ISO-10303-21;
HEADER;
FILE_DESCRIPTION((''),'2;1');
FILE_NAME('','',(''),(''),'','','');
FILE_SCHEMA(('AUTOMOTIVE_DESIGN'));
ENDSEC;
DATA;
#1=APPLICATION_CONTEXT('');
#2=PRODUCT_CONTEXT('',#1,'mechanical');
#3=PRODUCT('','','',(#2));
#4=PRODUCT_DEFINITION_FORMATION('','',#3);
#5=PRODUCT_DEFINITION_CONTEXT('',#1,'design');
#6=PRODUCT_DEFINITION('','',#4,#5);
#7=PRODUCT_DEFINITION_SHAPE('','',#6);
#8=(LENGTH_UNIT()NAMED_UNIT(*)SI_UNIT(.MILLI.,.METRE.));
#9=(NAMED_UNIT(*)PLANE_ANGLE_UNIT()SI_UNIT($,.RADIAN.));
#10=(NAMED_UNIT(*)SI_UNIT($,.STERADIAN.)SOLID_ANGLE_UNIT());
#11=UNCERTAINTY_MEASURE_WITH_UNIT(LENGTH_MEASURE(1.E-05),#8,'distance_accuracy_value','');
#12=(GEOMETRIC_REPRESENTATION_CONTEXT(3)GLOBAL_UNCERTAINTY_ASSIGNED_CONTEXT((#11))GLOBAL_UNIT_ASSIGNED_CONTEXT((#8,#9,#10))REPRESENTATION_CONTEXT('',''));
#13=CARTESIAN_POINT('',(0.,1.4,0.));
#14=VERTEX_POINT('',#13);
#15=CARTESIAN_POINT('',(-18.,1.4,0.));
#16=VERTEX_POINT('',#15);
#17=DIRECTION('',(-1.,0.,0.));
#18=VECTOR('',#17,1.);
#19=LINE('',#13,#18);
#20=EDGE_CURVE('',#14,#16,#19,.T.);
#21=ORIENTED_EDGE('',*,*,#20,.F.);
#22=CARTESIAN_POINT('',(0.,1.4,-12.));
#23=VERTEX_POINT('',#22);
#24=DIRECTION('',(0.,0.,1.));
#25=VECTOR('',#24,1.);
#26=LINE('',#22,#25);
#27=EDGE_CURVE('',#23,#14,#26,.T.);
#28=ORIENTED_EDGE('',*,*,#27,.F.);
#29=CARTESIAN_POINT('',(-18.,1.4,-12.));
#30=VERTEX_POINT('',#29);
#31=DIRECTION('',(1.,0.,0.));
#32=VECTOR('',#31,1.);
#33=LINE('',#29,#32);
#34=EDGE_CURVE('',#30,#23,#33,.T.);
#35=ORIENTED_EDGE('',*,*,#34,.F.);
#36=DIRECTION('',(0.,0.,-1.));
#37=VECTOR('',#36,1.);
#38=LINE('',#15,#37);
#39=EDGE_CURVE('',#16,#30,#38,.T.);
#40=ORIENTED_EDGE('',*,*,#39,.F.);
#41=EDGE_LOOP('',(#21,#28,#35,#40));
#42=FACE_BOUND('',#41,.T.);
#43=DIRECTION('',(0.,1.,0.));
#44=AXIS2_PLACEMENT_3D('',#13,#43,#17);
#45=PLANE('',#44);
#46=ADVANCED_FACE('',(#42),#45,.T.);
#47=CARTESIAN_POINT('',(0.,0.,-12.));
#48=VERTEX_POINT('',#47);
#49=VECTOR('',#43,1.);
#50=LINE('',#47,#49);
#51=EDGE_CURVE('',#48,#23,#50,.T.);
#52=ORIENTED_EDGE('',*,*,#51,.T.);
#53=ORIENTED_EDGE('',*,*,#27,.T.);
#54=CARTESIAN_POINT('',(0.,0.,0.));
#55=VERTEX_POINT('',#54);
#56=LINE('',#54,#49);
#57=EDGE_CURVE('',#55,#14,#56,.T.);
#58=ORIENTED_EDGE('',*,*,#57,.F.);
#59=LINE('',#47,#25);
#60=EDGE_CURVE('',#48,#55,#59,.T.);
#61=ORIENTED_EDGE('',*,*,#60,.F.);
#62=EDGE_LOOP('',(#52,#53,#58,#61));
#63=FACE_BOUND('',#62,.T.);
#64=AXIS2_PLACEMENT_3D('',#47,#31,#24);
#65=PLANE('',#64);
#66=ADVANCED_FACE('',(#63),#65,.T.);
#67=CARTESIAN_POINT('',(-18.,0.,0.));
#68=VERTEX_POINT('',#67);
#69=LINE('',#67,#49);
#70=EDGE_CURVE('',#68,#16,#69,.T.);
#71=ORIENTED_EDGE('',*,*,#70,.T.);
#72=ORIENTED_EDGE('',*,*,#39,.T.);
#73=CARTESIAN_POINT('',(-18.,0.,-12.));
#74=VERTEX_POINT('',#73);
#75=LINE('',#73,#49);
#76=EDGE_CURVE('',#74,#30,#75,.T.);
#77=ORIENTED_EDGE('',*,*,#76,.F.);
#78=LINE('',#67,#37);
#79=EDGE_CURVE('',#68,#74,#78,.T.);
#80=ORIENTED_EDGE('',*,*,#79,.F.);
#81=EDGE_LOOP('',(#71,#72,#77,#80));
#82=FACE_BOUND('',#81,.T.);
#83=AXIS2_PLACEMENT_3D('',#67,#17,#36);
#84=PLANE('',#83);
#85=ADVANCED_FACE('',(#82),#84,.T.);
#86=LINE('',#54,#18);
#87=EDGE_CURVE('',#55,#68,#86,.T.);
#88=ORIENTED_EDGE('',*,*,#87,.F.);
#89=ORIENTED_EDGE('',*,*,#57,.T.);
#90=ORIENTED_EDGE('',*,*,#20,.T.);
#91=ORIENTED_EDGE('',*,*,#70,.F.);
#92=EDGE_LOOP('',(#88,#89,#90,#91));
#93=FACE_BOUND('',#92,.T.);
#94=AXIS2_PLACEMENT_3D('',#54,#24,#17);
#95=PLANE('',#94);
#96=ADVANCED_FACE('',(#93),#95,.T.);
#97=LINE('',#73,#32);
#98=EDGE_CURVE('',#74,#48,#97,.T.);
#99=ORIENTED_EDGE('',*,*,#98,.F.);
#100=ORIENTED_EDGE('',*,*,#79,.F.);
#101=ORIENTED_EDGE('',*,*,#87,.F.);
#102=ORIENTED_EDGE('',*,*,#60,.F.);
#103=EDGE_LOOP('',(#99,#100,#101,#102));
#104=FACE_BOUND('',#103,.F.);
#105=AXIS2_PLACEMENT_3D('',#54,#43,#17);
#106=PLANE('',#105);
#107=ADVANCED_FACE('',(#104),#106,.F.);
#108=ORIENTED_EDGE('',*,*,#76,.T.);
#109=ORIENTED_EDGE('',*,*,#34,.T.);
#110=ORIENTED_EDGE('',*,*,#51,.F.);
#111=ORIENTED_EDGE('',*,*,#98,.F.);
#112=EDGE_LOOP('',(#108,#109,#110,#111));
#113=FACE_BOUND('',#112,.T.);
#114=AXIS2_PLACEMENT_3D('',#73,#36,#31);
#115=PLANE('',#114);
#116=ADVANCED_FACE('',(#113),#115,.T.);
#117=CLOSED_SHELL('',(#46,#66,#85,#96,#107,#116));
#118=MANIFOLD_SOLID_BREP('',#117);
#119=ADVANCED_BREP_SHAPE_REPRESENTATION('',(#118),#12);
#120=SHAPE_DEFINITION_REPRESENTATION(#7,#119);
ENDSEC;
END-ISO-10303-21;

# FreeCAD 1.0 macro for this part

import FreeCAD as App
import Part
import Sketcher
from FreeCAD import Vector
Q = App.Units.Quantity


def add_polygon(sketch, points):
    """Adds a closed chain of lines whose ends are joined by coincident constraints."""
    first, n = sketch.GeometryCount, len(points)
    for a, b in zip(points, points[1:] + points[:1]):
        sketch.addGeometry(Part.LineSegment(App.Vector(*a, 0), App.Vector(*b, 0)), False)
    for i in range(n):
        sketch.addConstraint(Sketcher.Constraint("Coincident", first + i, 2, first + (i + 1) % n, 1))

doc = App.newDocument("Part")
body = doc.addObject("PartDesign::Body", "Body")

sketch1 = body.newObject("Sketcher::SketchObject", "Sketch")
sketch1.AttachmentSupport = (doc.getObject("XZ_Plane"), [""])
sketch1.MapMode = "FlatFace"
add_polygon(sketch1, [(-18, 0), (0, 0), (0, -12), (-18, -12)])
sketch1.addConstraint([
    Sketcher.Constraint("Horizontal", 0),
    Sketcher.Constraint("Vertical", 1),
    Sketcher.Constraint("Horizontal", 2),
    Sketcher.Constraint("Vertical", 3),
    Sketcher.Constraint("Coincident", 0, 2, -1, 1),
    Sketcher.Constraint("DistanceX", 0, 1, 0, 2, Q("18 mm")),
    Sketcher.Constraint("DistanceY", 1, 2, 1, 1, Q("12 mm")),
])
pad1 = body.newObject("PartDesign::Pad", "Pad")
pad1.Profile = sketch1
pad1.Length = 1.4
pad1.Reversed = True

doc.recompute()
